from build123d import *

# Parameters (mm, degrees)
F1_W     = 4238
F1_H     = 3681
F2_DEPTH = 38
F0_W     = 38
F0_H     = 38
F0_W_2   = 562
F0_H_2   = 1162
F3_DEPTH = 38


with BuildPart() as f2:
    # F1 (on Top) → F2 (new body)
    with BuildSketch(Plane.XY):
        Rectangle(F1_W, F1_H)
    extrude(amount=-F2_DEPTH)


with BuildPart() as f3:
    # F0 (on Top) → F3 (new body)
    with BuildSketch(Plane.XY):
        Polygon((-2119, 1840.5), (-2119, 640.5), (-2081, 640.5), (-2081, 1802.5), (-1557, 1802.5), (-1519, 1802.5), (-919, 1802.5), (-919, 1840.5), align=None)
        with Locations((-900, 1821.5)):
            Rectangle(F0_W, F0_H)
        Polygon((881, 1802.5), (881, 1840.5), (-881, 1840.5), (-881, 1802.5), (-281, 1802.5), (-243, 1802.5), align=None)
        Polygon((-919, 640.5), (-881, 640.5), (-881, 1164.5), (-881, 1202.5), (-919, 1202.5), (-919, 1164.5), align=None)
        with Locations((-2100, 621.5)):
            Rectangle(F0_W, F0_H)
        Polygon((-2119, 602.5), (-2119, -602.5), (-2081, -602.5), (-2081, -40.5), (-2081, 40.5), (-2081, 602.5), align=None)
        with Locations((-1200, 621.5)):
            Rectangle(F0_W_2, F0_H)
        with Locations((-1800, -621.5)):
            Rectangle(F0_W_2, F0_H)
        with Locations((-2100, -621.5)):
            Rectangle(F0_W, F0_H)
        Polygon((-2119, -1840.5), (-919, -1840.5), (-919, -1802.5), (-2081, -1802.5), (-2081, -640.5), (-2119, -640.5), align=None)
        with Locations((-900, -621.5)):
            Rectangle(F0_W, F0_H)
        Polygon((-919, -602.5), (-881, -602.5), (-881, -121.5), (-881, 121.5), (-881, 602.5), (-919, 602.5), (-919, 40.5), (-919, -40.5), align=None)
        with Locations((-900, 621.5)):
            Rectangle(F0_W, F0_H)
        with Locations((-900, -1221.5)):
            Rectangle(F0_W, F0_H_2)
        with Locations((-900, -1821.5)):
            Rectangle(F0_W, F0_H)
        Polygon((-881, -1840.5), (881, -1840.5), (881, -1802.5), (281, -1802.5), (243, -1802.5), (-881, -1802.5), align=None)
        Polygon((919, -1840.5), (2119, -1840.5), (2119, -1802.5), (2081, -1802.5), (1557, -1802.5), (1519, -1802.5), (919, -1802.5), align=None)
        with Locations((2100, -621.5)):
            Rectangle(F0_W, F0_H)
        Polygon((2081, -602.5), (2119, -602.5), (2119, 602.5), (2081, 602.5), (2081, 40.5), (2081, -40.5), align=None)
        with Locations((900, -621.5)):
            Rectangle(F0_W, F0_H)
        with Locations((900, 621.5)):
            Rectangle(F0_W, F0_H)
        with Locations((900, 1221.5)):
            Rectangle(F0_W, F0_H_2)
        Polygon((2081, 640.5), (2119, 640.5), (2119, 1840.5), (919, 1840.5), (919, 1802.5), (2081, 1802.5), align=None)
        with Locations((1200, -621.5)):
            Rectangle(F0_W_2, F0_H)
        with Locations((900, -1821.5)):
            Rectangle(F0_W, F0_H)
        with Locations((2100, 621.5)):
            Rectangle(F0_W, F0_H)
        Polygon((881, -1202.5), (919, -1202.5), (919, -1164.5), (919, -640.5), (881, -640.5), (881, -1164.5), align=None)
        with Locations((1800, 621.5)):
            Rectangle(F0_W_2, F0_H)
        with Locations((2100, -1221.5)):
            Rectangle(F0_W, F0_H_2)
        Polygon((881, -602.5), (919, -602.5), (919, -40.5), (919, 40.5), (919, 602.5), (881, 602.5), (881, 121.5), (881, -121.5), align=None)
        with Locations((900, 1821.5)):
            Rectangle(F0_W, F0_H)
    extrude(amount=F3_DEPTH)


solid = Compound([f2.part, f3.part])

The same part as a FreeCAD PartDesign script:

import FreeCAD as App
import Part
import Sketcher

V = App.Vector
Q = App.Units.Quantity

doc = App.newDocument("Part")
body = doc.addObject("PartDesign::Body", "Body")

sketch1 = doc.addObject("Sketcher::SketchObject", "Sketch")
body.addObject(sketch1)
sketch1.AttachmentSupport = (doc.XY_Plane, [""])
sketch1.MapMode = "FlatFace"
sketch1.addGeometry([
    Part.LineSegment(V(-2119, 1840, 0), V(-2119, -1840, 0)),
    Part.LineSegment(V(-2119, -1840, 0), V(2119, -1840, 0)),
    Part.LineSegment(V(2119, -1840, 0), V(2119, 1840, 0)),
    Part.LineSegment(V(2119, 1840, 0), V(-2119, 1840, 0)),
], False)
sketch1.addConstraint([
    Sketcher.Constraint("Coincident", 0, 2, 1, 1),
    Sketcher.Constraint("Coincident", 1, 2, 2, 1),
    Sketcher.Constraint("Coincident", 2, 2, 3, 1),
    Sketcher.Constraint("Coincident", 3, 2, 0, 1),
    Sketcher.Constraint("Vertical", 0),
    Sketcher.Constraint("Horizontal", 1),
    Sketcher.Constraint("Vertical", 2),
    Sketcher.Constraint("Horizontal", 3),
    Sketcher.Constraint("Symmetric", 0, 2, 2, 2, -1, 1),
    Sketcher.Constraint("DistanceX", 1, 1, 1, 2, Q("4238 mm")),
    Sketcher.Constraint("DistanceY", 0, 2, 0, 1, Q("3681 mm")),
])
pad1 = doc.addObject("PartDesign::Pad", "Pad")
body.addObject(pad1)
pad1.Profile = sketch1
pad1.Length = 38
pad1.Reversed = True
body2 = doc.addObject("PartDesign::Body", "Body001")

sketch2 = doc.addObject("Sketcher::SketchObject", "Sketch001")
body2.addObject(sketch2)
sketch2.AttachmentSupport = (doc.getObject("XY_Plane001"), [""])
sketch2.MapMode = "FlatFace"
sketch2.addGeometry([
    Part.LineSegment(V(-2119, 1840, 0), V(-2119, -1840, 0)),
    Part.LineSegment(V(-2119, -1840, 0), V(2119, -1840, 0)),
    Part.LineSegment(V(2119, -1840, 0), V(2119, 1840, 0)),
    Part.LineSegment(V(2119, 1840, 0), V(-2119, 1840, 0)),
    Part.LineSegment(V(919, 1802, 0), V(2081, 1802, 0)),
    Part.LineSegment(V(2081, 1802, 0), V(2081, 640, 0)),
    Part.LineSegment(V(2081, 640, 0), V(1519, 640, 0)),
    Part.LineSegment(V(1519, 640, 0), V(1519, 602, 0)),
    Part.LineSegment(V(1519, 602, 0), V(2081, 602, 0)),
    Part.LineSegment(V(2081, 602, 0), V(2081, -1802, 0)),
    Part.LineSegment(V(2081, -1802, 0), V(-881, -1802, 0)),
    Part.LineSegment(V(-881, -1802, 0), V(-881, 1202, 0)),
    Part.LineSegment(V(-881, 1202, 0), V(-919, 1202, 0)),
    Part.LineSegment(V(-919, 1202, 0), V(-919, 640, 0)),
    Part.LineSegment(V(-919, 640, 0), V(-1481, 640, 0)),
    Part.LineSegment(V(-1481, 640, 0), V(-1481, 602, 0)),
    Part.LineSegment(V(-1481, 602, 0), V(-919, 602, 0)),
    Part.LineSegment(V(-919, 602, 0), V(-919, -1802, 0)),
    Part.LineSegment(V(-919, -1802, 0), V(-2081, -1802, 0)),
    Part.LineSegment(V(-2081, -1802, 0), V(-2081, -640, 0)),
    Part.LineSegment(V(-2081, -640, 0), V(-1519, -640, 0)),
    Part.LineSegment(V(-1519, -640, 0), V(-1519, -602, 0)),
    Part.LineSegment(V(-1519, -602, 0), V(-2081, -602, 0)),
    Part.LineSegment(V(-2081, -602, 0), V(-2081, 1802, 0)),
    Part.LineSegment(V(-2081, 1802, 0), V(881, 1802, 0)),
    Part.LineSegment(V(881, 1802, 0), V(881, -1202, 0)),
    Part.LineSegment(V(881, -1202, 0), V(919, -1202, 0)),
    Part.LineSegment(V(919, -1202, 0), V(919, -640, 0)),
    Part.LineSegment(V(919, -640, 0), V(1481, -640, 0)),
    Part.LineSegment(V(1481, -640, 0), V(1481, -602, 0)),
    Part.LineSegment(V(1481, -602, 0), V(919, -602, 0)),
    Part.LineSegment(V(919, -602, 0), V(919, 1802, 0)),
], False)
sketch2.addConstraint([
    Sketcher.Constraint("Coincident", 0, 2, 1, 1),
    Sketcher.Constraint("Coincident", 1, 2, 2, 1),
    Sketcher.Constraint("Coincident", 2, 2, 3, 1),
    Sketcher.Constraint("Coincident", 3, 2, 0, 1),
    Sketcher.Constraint("Coincident", 4, 2, 5, 1),
    Sketcher.Constraint("Coincident", 5, 2, 6, 1),
    Sketcher.Constraint("Coincident", 6, 2, 7, 1),
    Sketcher.Constraint("Coincident", 7, 2, 8, 1),
    Sketcher.Constraint("Coincident", 8, 2, 9, 1),
    Sketcher.Constraint("Coincident", 9, 2, 10, 1),
    Sketcher.Constraint("Coincident", 10, 2, 11, 1),
    Sketcher.Constraint("Coincident", 11, 2, 12, 1),
    Sketcher.Constraint("Coincident", 12, 2, 13, 1),
    Sketcher.Constraint("Coincident", 13, 2, 14, 1),
    Sketcher.Constraint("Coincident", 14, 2, 15, 1),
    Sketcher.Constraint("Coincident", 15, 2, 16, 1),
    Sketcher.Constraint("Coincident", 16, 2, 17, 1),
    Sketcher.Constraint("Coincident", 17, 2, 18, 1),
    Sketcher.Constraint("Coincident", 18, 2, 19, 1),
    Sketcher.Constraint("Coincident", 19, 2, 20, 1),
    Sketcher.Constraint("Coincident", 20, 2, 21, 1),
    Sketcher.Constraint("Coincident", 21, 2, 22, 1),
    Sketcher.Constraint("Coincident", 22, 2, 23, 1),
    Sketcher.Constraint("Coincident", 23, 2, 24, 1),
    Sketcher.Constraint("Coincident", 24, 2, 25, 1),
    Sketcher.Constraint("Coincident", 25, 2, 26, 1),
    Sketcher.Constraint("Coincident", 26, 2, 27, 1),
    Sketcher.Constraint("Coincident", 27, 2, 28, 1),
    Sketcher.Constraint("Coincident", 28, 2, 29, 1),
    Sketcher.Constraint("Coincident", 29, 2, 30, 1),
    Sketcher.Constraint("Coincident", 30, 2, 31, 1),
    Sketcher.Constraint("Coincident", 31, 2, 4, 1),
    Sketcher.Constraint("Vertical", 0),
    Sketcher.Constraint("Horizontal", 1),
    Sketcher.Constraint("Vertical", 2),
    Sketcher.Constraint("Horizontal", 3),
    Sketcher.Constraint("Horizontal", 4),
    Sketcher.Constraint("Vertical", 5),
    Sketcher.Constraint("Horizontal", 6),
    Sketcher.Constraint("Vertical", 7),
    Sketcher.Constraint("Horizontal", 8),
    Sketcher.Constraint("Vertical", 9),
    Sketcher.Constraint("Horizontal", 10),
    Sketcher.Constraint("Vertical", 11),
    Sketcher.Constraint("Horizontal", 12),
    Sketcher.Constraint("Vertical", 13),
    Sketcher.Constraint("Horizontal", 14),
    Sketcher.Constraint("Vertical", 15),
    Sketcher.Constraint("Horizontal", 16),
    Sketcher.Constraint("Vertical", 17),
    Sketcher.Constraint("Horizontal", 18),
    Sketcher.Constraint("Vertical", 19),
    Sketcher.Constraint("Horizontal", 20),
    Sketcher.Constraint("Vertical", 21),
    Sketcher.Constraint("Horizontal", 22),
    Sketcher.Constraint("Vertical", 23),
    Sketcher.Constraint("Horizontal", 24),
    Sketcher.Constraint("Vertical", 25),
    Sketcher.Constraint("Horizontal", 26),
    Sketcher.Constraint("Vertical", 27),
    Sketcher.Constraint("Horizontal", 28),
    Sketcher.Constraint("Vertical", 29),
    Sketcher.Constraint("Horizontal", 30),
    Sketcher.Constraint("Vertical", 31),
    Sketcher.Constraint("Symmetric", 0, 2, 2, 2, -1, 1),
    Sketcher.Constraint("Symmetric", 4, 2, 18, 2, -1, 1),
    Sketcher.Constraint("Symmetric", 6, 2, 20, 2, -1, 1),
    Sketcher.Constraint("Symmetric", 8, 2, 22, 2, -1, 1),
    Sketcher.Constraint("Symmetric", 10, 2, 24, 2, -1, 1),
    Sketcher.Constraint("Symmetric", 12, 2, 26, 2, -1, 1),
    Sketcher.Constraint("Symmetric", 14, 2, 28, 2, -1, 1),
    Sketcher.Constraint("Symmetric", 16, 2, 30, 2, -1, 1),
    Sketcher.Constraint("Symmetric", 9, 2, 18, 2, -2),
    Sketcher.Constraint("Horizontal", 6, 2, 13, 2),
    Sketcher.Constraint("Horizontal", 8, 2, 15, 2),
    Sketcher.Constraint("Vertical", 13, 2, 16, 2),
    Sketcher.Constraint("Equal", 8, 14),
    Sketcher.Constraint("Equal", 18, 5),
    Sketcher.Constraint("Equal", 26, 7),
    Sketcher.Constraint("Equal", 30, 13),
    Sketcher.Constraint("DistanceX", 1, 1, 1, 2, Q("4238 mm")),
    Sketcher.Constraint("DistanceX", 4, 1, 4, 2, Q("1162 mm")),
    Sketcher.Constraint("DistanceX", 6, 2, 6, 1, Q("562 mm")),
    Sketcher.Constraint("DistanceX", 10, 2, 10, 1, Q("2962 mm")),
    Sketcher.Constraint("DistanceX", 12, 2, 12, 1, Q("38 mm")),
    Sketcher.Constraint("DistanceY", 0, 2, 0, 1, Q("3681 mm")),
    Sketcher.Constraint("DistanceY", 9, 2, 9, 1, Q("2405 mm")),
])
pad2 = doc.addObject("PartDesign::Pad", "Pad001")
body2.addObject(pad2)
pad2.Profile = sketch2
pad2.Length = 38

doc.recompute()
